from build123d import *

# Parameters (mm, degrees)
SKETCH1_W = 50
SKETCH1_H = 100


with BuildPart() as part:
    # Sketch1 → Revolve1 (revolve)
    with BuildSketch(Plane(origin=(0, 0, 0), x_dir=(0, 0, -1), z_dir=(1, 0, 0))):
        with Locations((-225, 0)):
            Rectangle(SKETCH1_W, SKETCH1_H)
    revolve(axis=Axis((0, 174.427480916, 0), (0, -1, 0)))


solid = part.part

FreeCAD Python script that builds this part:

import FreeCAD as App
import Part
import Sketcher


def add_polygon(sketch, points):
    """Adds a closed chain of lines whose ends are joined by coincident constraints."""
    first, n = sketch.GeometryCount, len(points)
    for a, b in zip(points, points[1:] + points[:1]):
        sketch.addGeometry(Part.LineSegment(App.Vector(*a, 0), App.Vector(*b, 0)), False)
    for i in range(n):
        sketch.addConstraint(Sketcher.Constraint("Coincident", first + i, 2, first + (i + 1) % n, 1))

doc = App.newDocument("Part")
params = doc.addObject("Spreadsheet::Sheet", "Params")
for row, (alias, value) in enumerate([
    ("sketch1_width", "100 mm"),
    ("sketch1_height", "50 mm"),
    ("revolution_angle", "360 deg"),
], start=1):
    params.set(f"A{row}", alias)
    params.set(f"B{row}", "=" + value)
    params.setAlias(f"B{row}", alias)

body = doc.addObject("PartDesign::Body", "Body")

# Sketch on YZ plane
sketch1 = doc.addObject("Sketcher::SketchObject", "Sketch")
body.addObject(sketch1)
sketch1.AttachmentSupport = (doc.YZ_Plane, [""])
sketch1.MapMode = "FlatFace"
add_polygon(sketch1, [(50, 250), (-50, 250), (-50, 200), (50, 200)])  # lines 0-3
sketch1.addConstraint([
    Sketcher.Constraint("Horizontal", 0),
    Sketcher.Constraint("Vertical", 1),
    Sketcher.Constraint("Horizontal", 2),
    Sketcher.Constraint("Vertical", 3),
    Sketcher.Constraint("DistanceX", 0, 2, 0, 1, 100.0),
    Sketcher.Constraint("DistanceY", 1, 2, 1, 1, 50.0),
    Sketcher.Constraint("DistanceX", 0, 2, -1, 1, 50.0),
    Sketcher.Constraint("DistanceY", -1, 1, 0, 2, 250.0),
])
sketch1.setExpression("Constraints[8]", "Params.sketch1_width")
sketch1.setExpression("Constraints[9]", "Params.sketch1_height")
revolution = doc.addObject("PartDesign::Revolution", "Revolution")
body.addObject(revolution)
revolution.Profile = sketch1
revolution.ReferenceAxis = (sketch1, ["H_Axis"])
revolution.setExpression("Angle", "Params.revolution_angle")

doc.recompute()
